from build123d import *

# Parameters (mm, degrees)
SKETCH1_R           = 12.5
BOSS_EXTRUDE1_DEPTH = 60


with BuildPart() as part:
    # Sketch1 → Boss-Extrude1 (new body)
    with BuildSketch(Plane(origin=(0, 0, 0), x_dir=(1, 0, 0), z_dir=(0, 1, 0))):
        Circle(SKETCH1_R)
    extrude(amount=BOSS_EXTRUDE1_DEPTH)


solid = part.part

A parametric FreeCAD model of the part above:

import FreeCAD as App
import Part
import Sketcher
from FreeCAD import Vector
Q = App.Units.Quantity

doc = App.newDocument("Part")
body = doc.addObject("PartDesign::Body", "Body")

# Sketch on XZ plane
sketch1 = body.newObject("Sketcher::SketchObject", "Sketch")
sketch1.AttachmentSupport = (doc.getObject("XZ_Plane"), [""])
sketch1.MapMode = "FlatFace"
sketch1.addGeometry(Part.Circle(Vector(0, 0, 0), Vector(0, 0, 1), 12), False)
sketch1.addConstraint([
    Sketcher.Constraint("Coincident", 0, 3, -1, 1),
    Sketcher.Constraint("Diameter", 0, Q("25 mm")),
])
pad1 = body.newObject("PartDesign::Pad", "Pad")
pad1.Profile = sketch1
pad1.Length = 60
pad1.Reversed = True

doc.recompute()
